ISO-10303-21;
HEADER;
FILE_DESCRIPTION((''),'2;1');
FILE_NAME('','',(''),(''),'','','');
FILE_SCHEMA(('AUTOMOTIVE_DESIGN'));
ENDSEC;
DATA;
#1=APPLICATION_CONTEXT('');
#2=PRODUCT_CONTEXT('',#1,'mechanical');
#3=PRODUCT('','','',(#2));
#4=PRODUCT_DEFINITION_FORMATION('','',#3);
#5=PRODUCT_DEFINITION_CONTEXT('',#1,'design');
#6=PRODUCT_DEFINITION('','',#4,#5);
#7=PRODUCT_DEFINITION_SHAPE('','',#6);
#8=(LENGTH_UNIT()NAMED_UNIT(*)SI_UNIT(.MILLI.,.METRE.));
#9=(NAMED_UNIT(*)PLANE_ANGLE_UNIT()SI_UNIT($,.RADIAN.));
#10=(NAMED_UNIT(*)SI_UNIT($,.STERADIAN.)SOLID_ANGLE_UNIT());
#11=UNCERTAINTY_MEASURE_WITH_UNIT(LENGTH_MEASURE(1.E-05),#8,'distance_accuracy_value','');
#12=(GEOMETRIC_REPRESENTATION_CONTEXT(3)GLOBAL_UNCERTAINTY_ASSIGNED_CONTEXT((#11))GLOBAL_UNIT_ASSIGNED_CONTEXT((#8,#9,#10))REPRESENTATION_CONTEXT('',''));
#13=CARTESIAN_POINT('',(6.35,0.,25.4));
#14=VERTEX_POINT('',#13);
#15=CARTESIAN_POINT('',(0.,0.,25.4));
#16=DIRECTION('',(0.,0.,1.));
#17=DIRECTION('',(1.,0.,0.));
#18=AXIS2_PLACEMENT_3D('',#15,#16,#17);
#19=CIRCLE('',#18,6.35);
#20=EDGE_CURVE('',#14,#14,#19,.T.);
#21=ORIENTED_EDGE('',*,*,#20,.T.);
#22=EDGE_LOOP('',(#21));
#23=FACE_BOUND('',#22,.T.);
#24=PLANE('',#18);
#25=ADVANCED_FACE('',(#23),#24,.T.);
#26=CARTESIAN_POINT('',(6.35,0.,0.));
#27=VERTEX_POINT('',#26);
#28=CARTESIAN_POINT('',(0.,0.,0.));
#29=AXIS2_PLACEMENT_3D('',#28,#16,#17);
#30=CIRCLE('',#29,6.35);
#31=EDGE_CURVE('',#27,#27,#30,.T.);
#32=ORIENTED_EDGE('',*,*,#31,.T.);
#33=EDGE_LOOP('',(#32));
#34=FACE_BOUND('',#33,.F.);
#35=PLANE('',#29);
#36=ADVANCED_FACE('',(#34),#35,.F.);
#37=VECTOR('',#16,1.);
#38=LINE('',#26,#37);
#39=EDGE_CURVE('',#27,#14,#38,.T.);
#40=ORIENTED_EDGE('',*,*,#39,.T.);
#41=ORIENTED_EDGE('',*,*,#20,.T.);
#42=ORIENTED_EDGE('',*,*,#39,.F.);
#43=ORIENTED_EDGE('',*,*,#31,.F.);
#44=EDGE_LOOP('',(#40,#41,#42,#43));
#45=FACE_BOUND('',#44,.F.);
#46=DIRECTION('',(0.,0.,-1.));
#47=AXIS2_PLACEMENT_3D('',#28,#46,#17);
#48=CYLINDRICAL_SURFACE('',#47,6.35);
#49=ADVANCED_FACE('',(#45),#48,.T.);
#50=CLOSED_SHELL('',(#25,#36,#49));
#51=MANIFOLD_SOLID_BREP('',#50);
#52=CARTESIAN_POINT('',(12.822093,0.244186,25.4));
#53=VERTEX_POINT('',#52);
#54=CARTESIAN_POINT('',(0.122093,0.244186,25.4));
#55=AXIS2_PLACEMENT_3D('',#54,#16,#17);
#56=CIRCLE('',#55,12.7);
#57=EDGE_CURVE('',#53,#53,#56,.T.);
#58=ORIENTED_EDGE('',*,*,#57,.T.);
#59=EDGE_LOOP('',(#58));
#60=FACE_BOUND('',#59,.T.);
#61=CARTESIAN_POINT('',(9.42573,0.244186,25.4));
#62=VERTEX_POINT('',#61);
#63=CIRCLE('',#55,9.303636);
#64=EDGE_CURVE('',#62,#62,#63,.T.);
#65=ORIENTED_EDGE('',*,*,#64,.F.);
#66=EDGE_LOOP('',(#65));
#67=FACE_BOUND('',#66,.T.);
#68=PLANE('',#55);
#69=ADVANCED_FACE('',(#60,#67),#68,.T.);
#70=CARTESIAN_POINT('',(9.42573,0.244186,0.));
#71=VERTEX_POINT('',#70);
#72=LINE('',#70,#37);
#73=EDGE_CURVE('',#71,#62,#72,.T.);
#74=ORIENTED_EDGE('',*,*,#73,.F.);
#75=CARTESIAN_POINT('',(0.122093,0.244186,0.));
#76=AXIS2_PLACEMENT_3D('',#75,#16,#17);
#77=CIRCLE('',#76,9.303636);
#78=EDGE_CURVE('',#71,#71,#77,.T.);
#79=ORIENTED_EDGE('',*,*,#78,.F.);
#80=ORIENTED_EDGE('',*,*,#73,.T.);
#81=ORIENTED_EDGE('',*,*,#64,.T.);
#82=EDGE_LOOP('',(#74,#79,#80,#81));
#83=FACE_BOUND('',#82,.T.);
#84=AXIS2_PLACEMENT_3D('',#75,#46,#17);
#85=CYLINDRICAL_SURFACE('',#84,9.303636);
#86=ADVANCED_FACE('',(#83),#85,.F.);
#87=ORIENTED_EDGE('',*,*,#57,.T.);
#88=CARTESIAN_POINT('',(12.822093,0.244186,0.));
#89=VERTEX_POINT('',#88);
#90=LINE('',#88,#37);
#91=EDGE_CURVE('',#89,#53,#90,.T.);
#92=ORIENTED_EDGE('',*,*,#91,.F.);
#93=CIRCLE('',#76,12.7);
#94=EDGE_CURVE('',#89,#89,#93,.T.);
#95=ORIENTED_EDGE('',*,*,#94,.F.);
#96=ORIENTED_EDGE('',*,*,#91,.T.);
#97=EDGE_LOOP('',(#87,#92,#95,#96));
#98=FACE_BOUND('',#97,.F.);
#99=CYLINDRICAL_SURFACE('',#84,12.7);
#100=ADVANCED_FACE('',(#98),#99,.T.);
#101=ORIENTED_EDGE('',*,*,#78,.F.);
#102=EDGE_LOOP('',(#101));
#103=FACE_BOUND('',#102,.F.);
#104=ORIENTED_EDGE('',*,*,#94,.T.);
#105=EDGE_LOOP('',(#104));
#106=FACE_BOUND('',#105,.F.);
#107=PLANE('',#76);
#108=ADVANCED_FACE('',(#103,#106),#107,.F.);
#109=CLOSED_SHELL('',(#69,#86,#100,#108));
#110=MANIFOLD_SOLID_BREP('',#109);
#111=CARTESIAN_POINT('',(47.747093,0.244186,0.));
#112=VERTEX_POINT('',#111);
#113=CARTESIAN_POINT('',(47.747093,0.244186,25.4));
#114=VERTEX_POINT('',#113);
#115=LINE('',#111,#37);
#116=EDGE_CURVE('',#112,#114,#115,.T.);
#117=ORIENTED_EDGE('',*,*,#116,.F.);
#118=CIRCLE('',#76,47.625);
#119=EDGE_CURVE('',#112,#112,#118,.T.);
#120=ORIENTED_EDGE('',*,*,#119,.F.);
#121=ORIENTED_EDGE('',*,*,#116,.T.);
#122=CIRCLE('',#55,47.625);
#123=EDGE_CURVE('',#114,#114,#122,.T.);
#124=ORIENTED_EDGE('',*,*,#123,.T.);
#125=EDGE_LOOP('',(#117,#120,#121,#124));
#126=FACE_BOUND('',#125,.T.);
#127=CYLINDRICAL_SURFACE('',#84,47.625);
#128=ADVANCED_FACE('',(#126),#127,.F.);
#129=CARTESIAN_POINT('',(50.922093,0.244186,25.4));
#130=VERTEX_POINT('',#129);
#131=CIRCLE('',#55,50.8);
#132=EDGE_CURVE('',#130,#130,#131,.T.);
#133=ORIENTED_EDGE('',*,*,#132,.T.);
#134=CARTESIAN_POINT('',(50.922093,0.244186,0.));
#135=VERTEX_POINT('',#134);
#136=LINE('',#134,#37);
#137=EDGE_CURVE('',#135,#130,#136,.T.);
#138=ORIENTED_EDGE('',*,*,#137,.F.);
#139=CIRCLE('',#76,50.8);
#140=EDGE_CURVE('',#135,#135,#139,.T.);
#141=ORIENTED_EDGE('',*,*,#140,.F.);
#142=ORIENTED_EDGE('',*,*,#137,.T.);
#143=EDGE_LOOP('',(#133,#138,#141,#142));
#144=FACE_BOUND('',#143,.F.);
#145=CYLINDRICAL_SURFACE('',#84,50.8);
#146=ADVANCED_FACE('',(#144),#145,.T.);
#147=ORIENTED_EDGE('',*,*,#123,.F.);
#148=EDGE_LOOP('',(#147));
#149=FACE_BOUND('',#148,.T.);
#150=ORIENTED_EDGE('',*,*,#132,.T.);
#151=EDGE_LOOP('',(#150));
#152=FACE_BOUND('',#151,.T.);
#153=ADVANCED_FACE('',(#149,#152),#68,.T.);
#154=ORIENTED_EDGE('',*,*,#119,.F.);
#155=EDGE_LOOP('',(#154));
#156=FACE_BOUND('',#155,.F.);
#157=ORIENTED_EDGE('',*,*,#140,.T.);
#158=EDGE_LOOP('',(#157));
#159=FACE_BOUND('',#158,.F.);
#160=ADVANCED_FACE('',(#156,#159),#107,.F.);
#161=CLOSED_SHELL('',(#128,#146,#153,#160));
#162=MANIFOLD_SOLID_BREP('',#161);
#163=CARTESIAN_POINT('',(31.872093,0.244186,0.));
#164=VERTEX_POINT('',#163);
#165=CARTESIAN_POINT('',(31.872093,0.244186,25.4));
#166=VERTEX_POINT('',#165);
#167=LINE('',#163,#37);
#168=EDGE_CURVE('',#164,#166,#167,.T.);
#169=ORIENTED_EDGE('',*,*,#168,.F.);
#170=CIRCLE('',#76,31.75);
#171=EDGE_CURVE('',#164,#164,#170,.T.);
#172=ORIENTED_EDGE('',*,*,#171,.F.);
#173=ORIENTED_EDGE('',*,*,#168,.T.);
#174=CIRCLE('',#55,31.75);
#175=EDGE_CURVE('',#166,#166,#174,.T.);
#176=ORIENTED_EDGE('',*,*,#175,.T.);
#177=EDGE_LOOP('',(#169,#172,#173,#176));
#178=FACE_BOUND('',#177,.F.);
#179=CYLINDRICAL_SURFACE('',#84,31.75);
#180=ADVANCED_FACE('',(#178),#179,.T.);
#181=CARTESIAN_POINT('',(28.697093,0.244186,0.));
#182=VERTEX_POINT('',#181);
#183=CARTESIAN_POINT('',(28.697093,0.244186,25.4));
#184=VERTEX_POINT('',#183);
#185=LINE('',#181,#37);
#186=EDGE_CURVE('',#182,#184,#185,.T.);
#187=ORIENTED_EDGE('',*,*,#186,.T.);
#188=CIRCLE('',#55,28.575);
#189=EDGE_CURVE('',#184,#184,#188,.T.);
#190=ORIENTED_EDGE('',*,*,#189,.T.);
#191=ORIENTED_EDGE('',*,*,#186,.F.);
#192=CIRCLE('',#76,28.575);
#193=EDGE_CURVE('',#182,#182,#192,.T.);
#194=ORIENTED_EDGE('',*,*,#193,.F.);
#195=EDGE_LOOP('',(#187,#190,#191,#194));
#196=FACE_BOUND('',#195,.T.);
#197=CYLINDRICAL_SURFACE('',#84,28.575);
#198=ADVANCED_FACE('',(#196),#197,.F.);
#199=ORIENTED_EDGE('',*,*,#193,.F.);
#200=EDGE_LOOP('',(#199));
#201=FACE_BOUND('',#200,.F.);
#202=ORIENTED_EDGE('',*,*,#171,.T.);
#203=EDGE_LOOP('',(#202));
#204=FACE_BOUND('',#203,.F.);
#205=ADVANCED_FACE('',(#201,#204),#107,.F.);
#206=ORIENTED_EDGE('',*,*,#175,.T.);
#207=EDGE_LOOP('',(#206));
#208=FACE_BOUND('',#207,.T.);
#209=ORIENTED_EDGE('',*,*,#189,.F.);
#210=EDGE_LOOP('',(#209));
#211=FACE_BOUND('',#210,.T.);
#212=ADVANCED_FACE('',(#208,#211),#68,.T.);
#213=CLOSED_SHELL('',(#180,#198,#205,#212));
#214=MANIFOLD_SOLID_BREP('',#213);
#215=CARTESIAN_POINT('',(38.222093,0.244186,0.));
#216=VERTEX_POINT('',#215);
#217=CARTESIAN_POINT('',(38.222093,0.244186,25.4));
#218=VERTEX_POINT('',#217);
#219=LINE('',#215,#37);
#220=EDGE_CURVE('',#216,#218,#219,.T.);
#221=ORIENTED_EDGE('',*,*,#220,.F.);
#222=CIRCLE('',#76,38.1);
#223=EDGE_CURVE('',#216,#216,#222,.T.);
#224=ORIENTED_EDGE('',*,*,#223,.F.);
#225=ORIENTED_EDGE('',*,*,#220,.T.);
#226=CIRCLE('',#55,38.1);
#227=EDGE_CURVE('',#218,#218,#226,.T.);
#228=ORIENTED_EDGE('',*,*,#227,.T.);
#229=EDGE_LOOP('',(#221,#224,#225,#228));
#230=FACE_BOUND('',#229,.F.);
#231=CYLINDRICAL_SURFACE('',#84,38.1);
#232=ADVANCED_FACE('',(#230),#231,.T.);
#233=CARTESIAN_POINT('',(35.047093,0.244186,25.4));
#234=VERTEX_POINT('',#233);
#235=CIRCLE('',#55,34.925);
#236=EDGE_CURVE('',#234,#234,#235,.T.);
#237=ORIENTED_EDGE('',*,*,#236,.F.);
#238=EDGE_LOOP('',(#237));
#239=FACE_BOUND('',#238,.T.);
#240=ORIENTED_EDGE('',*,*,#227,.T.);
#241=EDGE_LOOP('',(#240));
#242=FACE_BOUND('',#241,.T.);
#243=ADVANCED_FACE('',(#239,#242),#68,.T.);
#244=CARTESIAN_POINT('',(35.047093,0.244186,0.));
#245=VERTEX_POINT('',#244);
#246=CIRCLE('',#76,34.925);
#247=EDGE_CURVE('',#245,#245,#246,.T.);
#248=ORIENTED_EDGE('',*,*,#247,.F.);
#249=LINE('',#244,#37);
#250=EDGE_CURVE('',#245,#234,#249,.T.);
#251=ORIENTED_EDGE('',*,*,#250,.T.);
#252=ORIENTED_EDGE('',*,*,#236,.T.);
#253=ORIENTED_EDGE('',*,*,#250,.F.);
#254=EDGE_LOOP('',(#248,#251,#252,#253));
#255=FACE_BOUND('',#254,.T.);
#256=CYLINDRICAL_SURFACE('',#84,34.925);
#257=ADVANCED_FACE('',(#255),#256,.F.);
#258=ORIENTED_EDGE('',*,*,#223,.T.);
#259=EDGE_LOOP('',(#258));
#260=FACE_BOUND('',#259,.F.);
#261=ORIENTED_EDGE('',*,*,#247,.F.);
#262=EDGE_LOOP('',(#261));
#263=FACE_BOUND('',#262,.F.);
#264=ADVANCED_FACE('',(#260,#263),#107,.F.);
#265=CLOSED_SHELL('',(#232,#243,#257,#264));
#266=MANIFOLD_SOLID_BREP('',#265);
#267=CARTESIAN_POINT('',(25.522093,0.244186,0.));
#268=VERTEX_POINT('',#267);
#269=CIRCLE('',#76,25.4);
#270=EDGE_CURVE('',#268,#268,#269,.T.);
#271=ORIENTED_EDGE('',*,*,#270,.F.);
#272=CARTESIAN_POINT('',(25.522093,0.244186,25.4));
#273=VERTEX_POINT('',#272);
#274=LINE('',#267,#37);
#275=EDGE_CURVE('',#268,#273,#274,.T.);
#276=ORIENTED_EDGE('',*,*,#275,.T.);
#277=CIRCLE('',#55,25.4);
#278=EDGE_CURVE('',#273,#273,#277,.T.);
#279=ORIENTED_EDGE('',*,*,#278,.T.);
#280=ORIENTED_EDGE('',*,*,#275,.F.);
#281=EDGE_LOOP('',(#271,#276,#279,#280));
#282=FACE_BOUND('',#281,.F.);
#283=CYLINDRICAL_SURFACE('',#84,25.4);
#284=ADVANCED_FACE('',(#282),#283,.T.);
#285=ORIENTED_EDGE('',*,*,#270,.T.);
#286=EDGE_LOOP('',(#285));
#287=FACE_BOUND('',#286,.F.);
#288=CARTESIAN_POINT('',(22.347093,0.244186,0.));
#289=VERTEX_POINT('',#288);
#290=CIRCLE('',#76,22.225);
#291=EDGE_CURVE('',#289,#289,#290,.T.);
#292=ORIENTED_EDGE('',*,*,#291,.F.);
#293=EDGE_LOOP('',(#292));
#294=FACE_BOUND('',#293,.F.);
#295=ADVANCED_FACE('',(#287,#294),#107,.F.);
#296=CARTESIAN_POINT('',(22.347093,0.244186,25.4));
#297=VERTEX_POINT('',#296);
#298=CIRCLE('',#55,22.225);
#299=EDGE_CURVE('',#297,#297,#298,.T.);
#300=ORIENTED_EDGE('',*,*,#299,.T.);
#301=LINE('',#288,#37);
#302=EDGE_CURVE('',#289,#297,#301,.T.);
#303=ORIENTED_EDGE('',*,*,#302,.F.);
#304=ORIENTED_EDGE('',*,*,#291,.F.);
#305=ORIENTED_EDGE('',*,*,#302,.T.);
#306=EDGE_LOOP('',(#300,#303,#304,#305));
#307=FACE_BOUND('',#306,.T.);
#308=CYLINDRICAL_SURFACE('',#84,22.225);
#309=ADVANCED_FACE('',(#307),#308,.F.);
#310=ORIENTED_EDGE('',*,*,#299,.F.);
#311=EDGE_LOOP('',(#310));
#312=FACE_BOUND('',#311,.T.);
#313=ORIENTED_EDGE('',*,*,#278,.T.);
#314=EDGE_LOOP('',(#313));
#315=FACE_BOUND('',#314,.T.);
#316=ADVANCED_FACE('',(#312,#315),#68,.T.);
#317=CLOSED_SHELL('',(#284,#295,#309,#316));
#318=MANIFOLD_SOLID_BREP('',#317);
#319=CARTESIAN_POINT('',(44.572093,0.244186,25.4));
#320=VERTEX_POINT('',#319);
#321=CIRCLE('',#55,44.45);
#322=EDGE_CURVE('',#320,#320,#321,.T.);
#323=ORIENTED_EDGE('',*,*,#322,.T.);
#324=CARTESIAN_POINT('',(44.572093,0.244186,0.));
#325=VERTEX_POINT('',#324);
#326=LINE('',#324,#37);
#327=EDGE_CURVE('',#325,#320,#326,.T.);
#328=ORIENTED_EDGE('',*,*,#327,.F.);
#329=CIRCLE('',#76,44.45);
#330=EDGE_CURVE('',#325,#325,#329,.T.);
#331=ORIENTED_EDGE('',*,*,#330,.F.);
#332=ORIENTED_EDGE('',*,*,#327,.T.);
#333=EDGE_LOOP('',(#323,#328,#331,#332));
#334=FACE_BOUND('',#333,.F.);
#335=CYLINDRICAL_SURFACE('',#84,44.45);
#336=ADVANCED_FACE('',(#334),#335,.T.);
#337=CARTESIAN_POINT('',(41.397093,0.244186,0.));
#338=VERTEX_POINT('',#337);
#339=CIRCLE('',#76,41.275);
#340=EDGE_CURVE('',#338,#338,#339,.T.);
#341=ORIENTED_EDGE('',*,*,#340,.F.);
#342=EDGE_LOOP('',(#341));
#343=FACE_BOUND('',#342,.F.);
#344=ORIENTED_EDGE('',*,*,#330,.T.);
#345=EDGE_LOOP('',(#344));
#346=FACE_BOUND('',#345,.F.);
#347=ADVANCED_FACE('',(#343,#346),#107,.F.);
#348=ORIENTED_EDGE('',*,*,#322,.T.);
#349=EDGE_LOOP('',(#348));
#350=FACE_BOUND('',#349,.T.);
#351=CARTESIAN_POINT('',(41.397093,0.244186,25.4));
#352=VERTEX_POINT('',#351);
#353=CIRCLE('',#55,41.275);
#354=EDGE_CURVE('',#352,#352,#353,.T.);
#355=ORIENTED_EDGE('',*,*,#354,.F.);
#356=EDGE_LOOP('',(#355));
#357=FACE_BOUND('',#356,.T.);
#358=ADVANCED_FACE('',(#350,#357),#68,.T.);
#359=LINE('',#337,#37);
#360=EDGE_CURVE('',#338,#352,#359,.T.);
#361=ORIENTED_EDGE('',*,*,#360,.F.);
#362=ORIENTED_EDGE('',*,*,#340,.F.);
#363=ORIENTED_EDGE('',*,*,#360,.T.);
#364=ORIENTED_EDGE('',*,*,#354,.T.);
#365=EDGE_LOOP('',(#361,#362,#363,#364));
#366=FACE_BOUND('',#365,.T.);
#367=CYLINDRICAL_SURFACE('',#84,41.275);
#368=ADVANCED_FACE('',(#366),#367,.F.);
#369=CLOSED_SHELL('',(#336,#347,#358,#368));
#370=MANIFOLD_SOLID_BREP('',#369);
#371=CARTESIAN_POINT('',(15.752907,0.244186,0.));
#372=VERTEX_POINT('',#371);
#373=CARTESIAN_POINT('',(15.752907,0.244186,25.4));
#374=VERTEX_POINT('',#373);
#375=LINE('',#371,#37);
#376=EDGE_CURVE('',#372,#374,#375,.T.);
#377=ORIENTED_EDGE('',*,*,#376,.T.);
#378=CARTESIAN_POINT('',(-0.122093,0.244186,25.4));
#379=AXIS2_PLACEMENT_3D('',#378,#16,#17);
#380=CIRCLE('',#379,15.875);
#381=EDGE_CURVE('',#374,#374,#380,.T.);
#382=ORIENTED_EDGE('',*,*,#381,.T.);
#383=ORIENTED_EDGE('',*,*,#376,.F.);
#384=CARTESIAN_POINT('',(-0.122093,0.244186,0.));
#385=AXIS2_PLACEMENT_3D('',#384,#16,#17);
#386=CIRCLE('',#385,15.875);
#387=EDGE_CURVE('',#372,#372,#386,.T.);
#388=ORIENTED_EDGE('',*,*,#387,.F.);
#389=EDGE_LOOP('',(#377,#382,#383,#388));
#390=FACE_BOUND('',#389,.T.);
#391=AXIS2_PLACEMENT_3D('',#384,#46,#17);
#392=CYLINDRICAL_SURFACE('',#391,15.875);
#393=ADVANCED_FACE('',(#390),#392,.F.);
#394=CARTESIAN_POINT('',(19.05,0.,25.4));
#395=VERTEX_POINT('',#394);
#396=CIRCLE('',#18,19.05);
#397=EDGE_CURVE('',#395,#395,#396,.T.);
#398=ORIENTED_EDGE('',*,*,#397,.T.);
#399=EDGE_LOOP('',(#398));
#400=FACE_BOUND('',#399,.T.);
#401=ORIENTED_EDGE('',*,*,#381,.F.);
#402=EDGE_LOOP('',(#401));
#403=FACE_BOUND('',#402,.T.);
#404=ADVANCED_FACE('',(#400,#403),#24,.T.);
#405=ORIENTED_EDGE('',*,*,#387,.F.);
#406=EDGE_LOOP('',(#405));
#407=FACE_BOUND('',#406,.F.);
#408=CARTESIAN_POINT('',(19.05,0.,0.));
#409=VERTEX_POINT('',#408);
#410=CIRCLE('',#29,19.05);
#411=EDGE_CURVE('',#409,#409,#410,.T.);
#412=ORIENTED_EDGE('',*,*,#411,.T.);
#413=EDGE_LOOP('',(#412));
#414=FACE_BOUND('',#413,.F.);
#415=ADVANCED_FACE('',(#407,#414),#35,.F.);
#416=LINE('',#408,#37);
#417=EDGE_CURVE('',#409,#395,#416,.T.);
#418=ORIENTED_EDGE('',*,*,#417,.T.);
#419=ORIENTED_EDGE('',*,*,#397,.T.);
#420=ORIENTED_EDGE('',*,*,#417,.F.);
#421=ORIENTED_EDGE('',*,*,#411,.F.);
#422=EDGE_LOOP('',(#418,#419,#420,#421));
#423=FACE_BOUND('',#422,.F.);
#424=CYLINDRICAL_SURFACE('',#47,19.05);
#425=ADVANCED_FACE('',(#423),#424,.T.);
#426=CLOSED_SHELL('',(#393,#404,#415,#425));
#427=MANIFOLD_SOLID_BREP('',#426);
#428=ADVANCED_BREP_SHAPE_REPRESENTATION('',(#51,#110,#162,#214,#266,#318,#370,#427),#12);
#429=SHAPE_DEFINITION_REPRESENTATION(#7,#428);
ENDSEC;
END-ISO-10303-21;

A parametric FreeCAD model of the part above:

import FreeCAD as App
import Part
import Sketcher

V = App.Vector
Q = App.Units.Quantity

doc = App.newDocument("Part")
body = doc.addObject("PartDesign::Body", "Body")

# Sketch on XY plane
sketch1 = body.newObject("Sketcher::SketchObject", "Sketch")
sketch1.AttachmentSupport = (doc.getObject("XY_Plane"), [""])
sketch1.MapMode = "FlatFace"
sketch1.addGeometry(Part.Circle(V(0, 0, 0), V(0, 0, 1), 6), False)
sketch1.addConstraint(Sketcher.Constraint("Coincident", 0, 3, -1, 1))
sketch1.addConstraint(Sketcher.Constraint("Diameter", 0, Q("0.5 in")))
pad1 = body.newObject("PartDesign::Pad", "Pad")
pad1.Profile = sketch1
pad1.Length = Q("1 in")
body2 = doc.addObject("PartDesign::Body", "Body001")

# Sketch on XY plane
sketch2 = body2.newObject("Sketcher::SketchObject", "Sketch001")
sketch2.AttachmentSupport = (doc.getObject("XY_Plane001"), [""])
sketch2.MapMode = "FlatFace"
sketch2.addGeometry(Part.Circle(V(0, 0, 0), V(0, 0, 1), 13), False)
sketch2.addGeometry(Part.Circle(V(0, 0, 0), V(0, 0, 1), 9), False)
sketch2.addConstraint(Sketcher.Constraint("Coincident", 1, 3, 0, 3))
sketch2.addConstraint(Sketcher.Constraint("Diameter", 0, Q("1 in")))
sketch2.addConstraint(Sketcher.Constraint("Diameter", 1, 18.607273))
sketch2.addConstraint(Sketcher.Constraint("DistanceX", -1, 1, 0, 3, 0.122093))
sketch2.addConstraint(Sketcher.Constraint("DistanceY", -1, 1, 0, 3, 0.244186))
pad2 = body2.newObject("PartDesign::Pad", "Pad001")
pad2.Profile = sketch2
pad2.Length = Q("1 in")
body3 = doc.addObject("PartDesign::Body", "Body002")

# Sketch on XY plane
sketch3 = body3.newObject("Sketcher::SketchObject", "Sketch002")
sketch3.AttachmentSupport = (doc.getObject("XY_Plane002"), [""])
sketch3.MapMode = "FlatFace"
sketch3.addGeometry(Part.Circle(V(0, 0, 0), V(0, 0, 1), 19), False)
sketch3.addGeometry(Part.Circle(V(0, 0, 0), V(0, 0, 1), 16), False)
sketch3.addConstraint(Sketcher.Constraint("Coincident", 0, 3, -1, 1))
sketch3.addConstraint(Sketcher.Constraint("Diameter", 0, Q("1.5 in")))
sketch3.addConstraint(Sketcher.Constraint("Diameter", 1, Q("1.25 in")))
sketch3.addConstraint(Sketcher.Constraint("DistanceX", 1, 3, -1, 1, 0.122093))
sketch3.addConstraint(Sketcher.Constraint("DistanceY", -1, 1, 1, 3, 0.244186))
pad3 = body3.newObject("PartDesign::Pad", "Pad002")
pad3.Profile = sketch3
pad3.Length = Q("1 in")
body4 = doc.addObject("PartDesign::Body", "Body003")

# Sketch on XY plane
sketch4 = body4.newObject("Sketcher::SketchObject", "Sketch003")
sketch4.AttachmentSupport = (doc.getObject("XY_Plane003"), [""])
sketch4.MapMode = "FlatFace"
sketch4.addGeometry(Part.Circle(V(0, 0, 0), V(0, 0, 1), 25), False)
sketch4.addGeometry(Part.Circle(V(0, 0, 0), V(0, 0, 1), 22), False)
sketch4.addConstraint(Sketcher.Constraint("Coincident", 1, 3, 0, 3))
sketch4.addConstraint(Sketcher.Constraint("Diameter", 0, Q("2 in")))
sketch4.addConstraint(Sketcher.Constraint("Diameter", 1, Q("1.75 in")))
sketch4.addConstraint(Sketcher.Constraint("DistanceX", -1, 1, 0, 3, 0.122093))
sketch4.addConstraint(Sketcher.Constraint("DistanceY", -1, 1, 0, 3, 0.244186))
pad4 = body4.newObject("PartDesign::Pad", "Pad003")
pad4.Profile = sketch4
pad4.Length = Q("1 in")
body5 = doc.addObject("PartDesign::Body", "Body004")

# Sketch on XY plane
sketch5 = body5.newObject("Sketcher::SketchObject", "Sketch004")
sketch5.AttachmentSupport = (doc.getObject("XY_Plane004"), [""])
sketch5.MapMode = "FlatFace"
sketch5.addGeometry(Part.Circle(V(0, 0, 0), V(0, 0, 1), 32), False)
sketch5.addGeometry(Part.Circle(V(0, 0, 0), V(0, 0, 1), 29), False)
sketch5.addConstraint(Sketcher.Constraint("Coincident", 1, 3, 0, 3))
sketch5.addConstraint(Sketcher.Constraint("Diameter", 0, Q("2.5 in")))
sketch5.addConstraint(Sketcher.Constraint("Diameter", 1, Q("2.25 in")))
sketch5.addConstraint(Sketcher.Constraint("DistanceX", -1, 1, 0, 3, 0.122093))
sketch5.addConstraint(Sketcher.Constraint("DistanceY", -1, 1, 0, 3, 0.244186))
pad5 = body5.newObject("PartDesign::Pad", "Pad004")
pad5.Profile = sketch5
pad5.Length = Q("1 in")
body6 = doc.addObject("PartDesign::Body", "Body005")

# Sketch on XY plane
sketch6 = body6.newObject("Sketcher::SketchObject", "Sketch005")
sketch6.AttachmentSupport = (doc.getObject("XY_Plane005"), [""])
sketch6.MapMode = "FlatFace"
sketch6.addGeometry(Part.Circle(V(0, 0, 0), V(0, 0, 1), 38), False)
sketch6.addGeometry(Part.Circle(V(0, 0, 0), V(0, 0, 1), 35), False)
sketch6.addConstraint(Sketcher.Constraint("Coincident", 1, 3, 0, 3))
sketch6.addConstraint(Sketcher.Constraint("Diameter", 0, Q("3 in")))
sketch6.addConstraint(Sketcher.Constraint("Diameter", 1, Q("2.75 in")))
sketch6.addConstraint(Sketcher.Constraint("DistanceX", -1, 1, 0, 3, 0.122093))
sketch6.addConstraint(Sketcher.Constraint("DistanceY", -1, 1, 0, 3, 0.244186))
pad6 = body6.newObject("PartDesign::Pad", "Pad005")
pad6.Profile = sketch6
pad6.Length = Q("1 in")
body7 = doc.addObject("PartDesign::Body", "Body006")

# Sketch on XY plane
sketch7 = body7.newObject("Sketcher::SketchObject", "Sketch006")
sketch7.AttachmentSupport = (doc.getObject("XY_Plane006"), [""])
sketch7.MapMode = "FlatFace"
sketch7.addGeometry(Part.Circle(V(0, 0, 0), V(0, 0, 1), 44), False)
sketch7.addGeometry(Part.Circle(V(0, 0, 0), V(0, 0, 1), 41), False)
sketch7.addConstraint(Sketcher.Constraint("Coincident", 1, 3, 0, 3))
sketch7.addConstraint(Sketcher.Constraint("Diameter", 0, Q("3.5 in")))
sketch7.addConstraint(Sketcher.Constraint("Diameter", 1, Q("3.25 in")))
sketch7.addConstraint(Sketcher.Constraint("DistanceX", -1, 1, 0, 3, 0.122093))
sketch7.addConstraint(Sketcher.Constraint("DistanceY", -1, 1, 0, 3, 0.244186))
pad7 = body7.newObject("PartDesign::Pad", "Pad006")
pad7.Profile = sketch7
pad7.Length = Q("1 in")
body8 = doc.addObject("PartDesign::Body", "Body007")

# Sketch on XY plane
sketch8 = body8.newObject("Sketcher::SketchObject", "Sketch007")
sketch8.AttachmentSupport = (doc.getObject("XY_Plane007"), [""])
sketch8.MapMode = "FlatFace"
sketch8.addGeometry(Part.Circle(V(0, 0, 0), V(0, 0, 1), 51), False)
sketch8.addGeometry(Part.Circle(V(0, 0, 0), V(0, 0, 1), 48), False)
sketch8.addConstraint(Sketcher.Constraint("Coincident", 1, 3, 0, 3))
sketch8.addConstraint(Sketcher.Constraint("Diameter", 0, Q("4 in")))
sketch8.addConstraint(Sketcher.Constraint("Diameter", 1, Q("3.75 in")))
sketch8.addConstraint(Sketcher.Constraint("DistanceX", -1, 1, 0, 3, 0.122093))
sketch8.addConstraint(Sketcher.Constraint("DistanceY", -1, 1, 0, 3, 0.244186))
pad8 = body8.newObject("PartDesign::Pad", "Pad007")
pad8.Profile = sketch8
pad8.Length = Q("1 in")

doc.recompute()
